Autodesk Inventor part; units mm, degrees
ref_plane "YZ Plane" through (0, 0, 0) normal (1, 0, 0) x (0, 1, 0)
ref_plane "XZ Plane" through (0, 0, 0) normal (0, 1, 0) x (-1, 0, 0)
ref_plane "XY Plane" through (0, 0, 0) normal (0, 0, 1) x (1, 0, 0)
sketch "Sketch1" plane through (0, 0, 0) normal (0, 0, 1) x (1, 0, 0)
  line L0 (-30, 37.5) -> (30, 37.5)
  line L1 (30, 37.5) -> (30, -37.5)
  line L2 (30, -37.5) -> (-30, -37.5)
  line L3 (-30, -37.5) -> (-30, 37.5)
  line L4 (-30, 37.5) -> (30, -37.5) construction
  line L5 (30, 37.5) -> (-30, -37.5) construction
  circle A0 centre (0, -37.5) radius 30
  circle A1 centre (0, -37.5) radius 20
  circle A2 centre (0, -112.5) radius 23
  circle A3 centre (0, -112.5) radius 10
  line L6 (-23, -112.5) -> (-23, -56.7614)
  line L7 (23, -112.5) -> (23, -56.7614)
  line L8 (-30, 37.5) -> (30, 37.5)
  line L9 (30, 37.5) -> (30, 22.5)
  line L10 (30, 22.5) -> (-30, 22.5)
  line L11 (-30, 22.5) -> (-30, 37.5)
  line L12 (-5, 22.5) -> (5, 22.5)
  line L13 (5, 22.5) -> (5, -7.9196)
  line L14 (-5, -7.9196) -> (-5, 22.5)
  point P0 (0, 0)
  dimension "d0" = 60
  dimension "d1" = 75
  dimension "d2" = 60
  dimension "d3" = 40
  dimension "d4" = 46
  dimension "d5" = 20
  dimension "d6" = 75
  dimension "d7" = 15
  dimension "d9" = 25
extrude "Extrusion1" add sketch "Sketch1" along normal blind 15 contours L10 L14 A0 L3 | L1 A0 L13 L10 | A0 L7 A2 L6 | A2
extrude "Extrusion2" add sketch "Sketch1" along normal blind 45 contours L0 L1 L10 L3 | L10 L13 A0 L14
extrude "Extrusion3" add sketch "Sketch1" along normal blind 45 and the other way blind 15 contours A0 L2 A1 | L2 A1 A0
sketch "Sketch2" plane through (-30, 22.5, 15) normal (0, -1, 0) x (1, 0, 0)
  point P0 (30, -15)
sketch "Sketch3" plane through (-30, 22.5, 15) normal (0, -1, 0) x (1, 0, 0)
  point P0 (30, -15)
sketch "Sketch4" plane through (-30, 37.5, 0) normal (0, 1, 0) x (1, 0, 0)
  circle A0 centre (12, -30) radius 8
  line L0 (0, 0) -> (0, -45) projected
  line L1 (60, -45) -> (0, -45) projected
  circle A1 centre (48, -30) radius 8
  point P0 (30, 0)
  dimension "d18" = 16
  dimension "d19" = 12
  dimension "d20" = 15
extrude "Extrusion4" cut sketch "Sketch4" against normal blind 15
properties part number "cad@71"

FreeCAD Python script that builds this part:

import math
import FreeCAD as App
import Part
import Sketcher
Q = App.Units.Quantity

doc = App.newDocument("Part")
params = doc.addObject("Spreadsheet::Sheet", "Params")
for row, (alias, value) in enumerate([
    ("sketch1_diameter", "20 mm"),
    ("sketch1_radius", "30 mm"),
    ("sketch1_radius2", "23 mm"),
    ("sketch1_width", "25 mm"),
    ("sketch1_height", "60 mm"),
    ("pad1_length", "15 mm"),
    ("sketch2_radius", "30 mm"),
    ("sketch2_width", "60 mm"),
    ("sketch2_width2", "25 mm"),
    ("sketch2_height", "15 mm"),
    ("pad2_length", "45 mm"),
    ("sketch3_diameter", "60 mm"),
    ("sketch3_diameter2", "40 mm"),
    ("pad3_length", "45 mm"),
    ("pad3_length2", "15 mm"),
    ("sketch4_diameter", "16 mm"),
    ("pocket1_length", "15 mm"),
], start=1):
    params.set(f"A{row}", alias)
    params.set(f"B{row}", "=" + value)
    params.setAlias(f"B{row}", alias)

body = doc.addObject("PartDesign::Body", "Body")
body.AllowCompound = True

sketch1 = doc.addObject("Sketcher::SketchObject", "Sketch")
body.addObject(sketch1)
sketch1.AttachmentSupport = (doc.XY_Plane, [""])
sketch1.MapMode = "FlatFace"
sketch1.addGeometry([
    Part.LineSegment(App.Vector(-5, 22, 0), App.Vector(-30, 22, 0)),
    Part.LineSegment(App.Vector(-30, 22, 0), App.Vector(-30, -38, 0)),
    Part.ArcOfCircle(Part.Circle(App.Vector(0, -38, 0), App.Vector(0, 0, 1), 30), math.radians(100), math.radians(180)),
    Part.LineSegment(App.Vector(-5, -8, 0), App.Vector(-5, 22, 0)),
    Part.LineSegment(App.Vector(30, -38, 0), App.Vector(30, 22, 0)),
    Part.LineSegment(App.Vector(30, 22, 0), App.Vector(5, 22, 0)),
    Part.LineSegment(App.Vector(5, 22, 0), App.Vector(5, -8, 0)),
    Part.ArcOfCircle(Part.Circle(App.Vector(0, -38, 0), App.Vector(0, 0, 1), 30), math.radians(0), math.radians(80)),
    Part.ArcOfCircle(Part.Circle(App.Vector(0, -38, 0), App.Vector(0, 0, 1), 30), math.radians(-140), math.radians(-40)),
    Part.LineSegment(App.Vector(-23, -57, 0), App.Vector(-23, -112, 0)),
    Part.ArcOfCircle(Part.Circle(App.Vector(0, -112, 0), App.Vector(0, 0, 1), 23), math.radians(180), math.radians(360)),
    Part.LineSegment(App.Vector(23, -112, 0), App.Vector(23, -57, 0)),
    Part.Circle(App.Vector(0, -112, 0), App.Vector(0, 0, 1), 10),
], False)
sketch1.addConstraint([
    Sketcher.Constraint("Coincident", 0, 2, 1, 1),
    Sketcher.Constraint("Tangent", 1, 2, 2, 2),
    Sketcher.Constraint("Coincident", 2, 1, 3, 1),
    Sketcher.Constraint("Coincident", 3, 2, 0, 1),
    Sketcher.Constraint("Coincident", 4, 2, 5, 1),
    Sketcher.Constraint("Coincident", 5, 2, 6, 1),
    Sketcher.Constraint("Coincident", 6, 2, 7, 2),
    Sketcher.Constraint("Tangent", 7, 1, 4, 1),
    Sketcher.Constraint("Coincident", 8, 1, 9, 1),
    Sketcher.Constraint("Tangent", 9, 2, 10, 1),
    Sketcher.Constraint("Tangent", 10, 2, 11, 1),
    Sketcher.Constraint("Coincident", 11, 2, 8, 2),
    Sketcher.Constraint("Horizontal", 0),
    Sketcher.Constraint("Vertical", 1),
    Sketcher.Constraint("Vertical", 3),
    Sketcher.Constraint("Vertical", 4),
    Sketcher.Constraint("Horizontal", 5),
    Sketcher.Constraint("Vertical", 6),
    Sketcher.Constraint("Vertical", 9),
    Sketcher.Constraint("Vertical", 11),
    Sketcher.Constraint("Coincident", 7, 3, 2, 3),
    Sketcher.Constraint("Coincident", 8, 3, 2, 3),
    Sketcher.Constraint("Coincident", 12, 3, 10, 3),
    Sketcher.Constraint("Equal", 2, 7),
    Sketcher.Constraint("Equal", 7, 8),
    Sketcher.Constraint("Symmetric", 0, 2, 4, 2, -2),
    Sketcher.Constraint("PointOnObject", 10, 3, -2),
    Sketcher.Constraint("Horizontal", 2, 1, 6, 2),
    Sketcher.Constraint("Diameter", 12, Q("20 mm")),
    Sketcher.Constraint("Radius", 2, Q("30 mm")),
    Sketcher.Constraint("Radius", 10, Q("23 mm")),
    Sketcher.Constraint("DistanceX", 0, 2, 0, 1, Q("25 mm")),
    Sketcher.Constraint("DistanceY", 1, 2, 1, 1, Q("60 mm")),
    Sketcher.Constraint("DistanceY", 10, 3, 2, 3, Q("75 mm")),
    Sketcher.Constraint("DistanceY", 2, 3, -1, 1, Q("37.5 mm")),
])
sketch1.setExpression("Constraints[28]", "Params.sketch1_diameter")
sketch1.setExpression("Constraints[29]", "Params.sketch1_radius")
sketch1.setExpression("Constraints[30]", "Params.sketch1_radius2")
sketch1.setExpression("Constraints[31]", "Params.sketch1_width")
sketch1.setExpression("Constraints[32]", "Params.sketch1_height")
pad1 = doc.addObject("PartDesign::Pad", "Pad")
body.addObject(pad1)
pad1.Profile = sketch1
pad1.setExpression("Length", "Params.pad1_length")

sketch2 = doc.addObject("Sketcher::SketchObject", "Sketch001")
body.addObject(sketch2)
sketch2.AttachmentSupport = (doc.XY_Plane, [""])
sketch2.MapMode = "FlatFace"
sketch2.addGeometry([
    Part.LineSegment(App.Vector(30, 38, 0), App.Vector(-30, 38, 0)),
    Part.LineSegment(App.Vector(-30, 38, 0), App.Vector(-30, 22, 0)),
    Part.LineSegment(App.Vector(-30, 22, 0), App.Vector(-5, 22, 0)),
    Part.LineSegment(App.Vector(-5, 22, 0), App.Vector(-5, -8, 0)),
    Part.ArcOfCircle(Part.Circle(App.Vector(0, -38, 0), App.Vector(0, 0, 1), 30), math.radians(80.41), math.radians(99.59)),
    Part.LineSegment(App.Vector(5, -8, 0), App.Vector(5, 22, 0)),
    Part.LineSegment(App.Vector(5, 22, 0), App.Vector(30, 22, 0)),
    Part.LineSegment(App.Vector(30, 22, 0), App.Vector(30, 38, 0)),
], False)
sketch2.addConstraint([
    Sketcher.Constraint("Coincident", 0, 2, 1, 1),
    Sketcher.Constraint("Coincident", 1, 2, 2, 1),
    Sketcher.Constraint("Coincident", 2, 2, 3, 1),
    Sketcher.Constraint("Coincident", 3, 2, 4, 2),
    Sketcher.Constraint("Coincident", 4, 1, 5, 1),
    Sketcher.Constraint("Coincident", 5, 2, 6, 1),
    Sketcher.Constraint("Coincident", 6, 2, 7, 1),
    Sketcher.Constraint("Coincident", 7, 2, 0, 1),
    Sketcher.Constraint("Horizontal", 0),
    Sketcher.Constraint("Vertical", 1),
    Sketcher.Constraint("Horizontal", 2),
    Sketcher.Constraint("Vertical", 3),
    Sketcher.Constraint("Vertical", 5),
    Sketcher.Constraint("Horizontal", 6),
    Sketcher.Constraint("Vertical", 7),
    Sketcher.Constraint("Symmetric", 3, 2, 4, 1, -2),
    Sketcher.Constraint("Symmetric", 1, 2, 6, 2, -2),
    Sketcher.Constraint("Radius", 4, Q("30 mm")),
    Sketcher.Constraint("DistanceX", 0, 2, 0, 1, Q("60 mm")),
    Sketcher.Constraint("DistanceX", 2, 1, 2, 2, Q("25 mm")),
    Sketcher.Constraint("DistanceY", 1, 2, 1, 1, Q("15 mm")),
    Sketcher.Constraint("DistanceY", 4, 3, 0, 2, Q("75 mm")),
    Sketcher.Constraint("DistanceY", 4, 3, -1, 1, Q("37.5 mm")),
])
sketch2.setExpression("Constraints[17]", "Params.sketch2_radius")
sketch2.setExpression("Constraints[18]", "Params.sketch2_width")
sketch2.setExpression("Constraints[19]", "Params.sketch2_width2")
sketch2.setExpression("Constraints[20]", "Params.sketch2_height")
pad2 = doc.addObject("PartDesign::Pad", "Pad001")
body.addObject(pad2)
pad2.Profile = sketch2
pad2.setExpression("Length", "Params.pad2_length")

sketch3 = doc.addObject("Sketcher::SketchObject", "Sketch002")
body.addObject(sketch3)
sketch3.AttachmentSupport = (doc.XY_Plane, [""])
sketch3.MapMode = "FlatFace"
sketch3.addGeometry([
    Part.Circle(App.Vector(0, -38, 0), App.Vector(0, 0, 1), 30),
    Part.Circle(App.Vector(0, -38, 0), App.Vector(0, 0, 1), 20),
], False)
sketch3.addConstraint([
    Sketcher.Constraint("Coincident", 1, 3, 0, 3),
    Sketcher.Constraint("PointOnObject", 0, 3, -2),
    Sketcher.Constraint("Diameter", 0, Q("60 mm")),
    Sketcher.Constraint("Diameter", 1, Q("40 mm")),
    Sketcher.Constraint("DistanceY", 0, 3, -1, 1, Q("37.5 mm")),
])
sketch3.setExpression("Constraints[2]", "Params.sketch3_diameter")
sketch3.setExpression("Constraints[3]", "Params.sketch3_diameter2")
pad3 = doc.addObject("PartDesign::Pad", "Pad002")
body.addObject(pad3)
pad3.Profile = sketch3
pad3.Type = "TwoLengths"
pad3.setExpression("Length", "Params.pad3_length")
pad3.setExpression("Length2", "Params.pad3_length2")

sketch4 = doc.addObject("Sketcher::SketchObject", "Sketch003")
body.addObject(sketch4)
sketch4.AttachmentSupport = (doc.XZ_Plane, [""])
sketch4.MapMode = "FlatFace"
sketch4.AttachmentOffset = App.Placement(App.Vector(0, 0, -37.5), App.Rotation())
sketch4.addGeometry([
    Part.Circle(App.Vector(-18, 30, 0), App.Vector(0, 0, 1), 8),
    Part.Circle(App.Vector(18, 30, 0), App.Vector(0, 0, 1), 8),
], False)
sketch4.addConstraint([
    Sketcher.Constraint("Equal", 0, 1),
    Sketcher.Constraint("Symmetric", 0, 3, 1, 3, -2),
    Sketcher.Constraint("Diameter", 0, Q("16 mm")),
    Sketcher.Constraint("DistanceX", 0, 3, -1, 1, Q("18 mm")),
    Sketcher.Constraint("DistanceY", -1, 1, 0, 3, Q("30 mm")),
])
sketch4.setExpression("Constraints[2]", "Params.sketch4_diameter")
pocket1 = doc.addObject("PartDesign::Pocket", "Pocket")
body.addObject(pocket1)
pocket1.Profile = sketch4
pocket1.setExpression("Length", "Params.pocket1_length")
pocket1.Reversed = True

doc.recompute()
